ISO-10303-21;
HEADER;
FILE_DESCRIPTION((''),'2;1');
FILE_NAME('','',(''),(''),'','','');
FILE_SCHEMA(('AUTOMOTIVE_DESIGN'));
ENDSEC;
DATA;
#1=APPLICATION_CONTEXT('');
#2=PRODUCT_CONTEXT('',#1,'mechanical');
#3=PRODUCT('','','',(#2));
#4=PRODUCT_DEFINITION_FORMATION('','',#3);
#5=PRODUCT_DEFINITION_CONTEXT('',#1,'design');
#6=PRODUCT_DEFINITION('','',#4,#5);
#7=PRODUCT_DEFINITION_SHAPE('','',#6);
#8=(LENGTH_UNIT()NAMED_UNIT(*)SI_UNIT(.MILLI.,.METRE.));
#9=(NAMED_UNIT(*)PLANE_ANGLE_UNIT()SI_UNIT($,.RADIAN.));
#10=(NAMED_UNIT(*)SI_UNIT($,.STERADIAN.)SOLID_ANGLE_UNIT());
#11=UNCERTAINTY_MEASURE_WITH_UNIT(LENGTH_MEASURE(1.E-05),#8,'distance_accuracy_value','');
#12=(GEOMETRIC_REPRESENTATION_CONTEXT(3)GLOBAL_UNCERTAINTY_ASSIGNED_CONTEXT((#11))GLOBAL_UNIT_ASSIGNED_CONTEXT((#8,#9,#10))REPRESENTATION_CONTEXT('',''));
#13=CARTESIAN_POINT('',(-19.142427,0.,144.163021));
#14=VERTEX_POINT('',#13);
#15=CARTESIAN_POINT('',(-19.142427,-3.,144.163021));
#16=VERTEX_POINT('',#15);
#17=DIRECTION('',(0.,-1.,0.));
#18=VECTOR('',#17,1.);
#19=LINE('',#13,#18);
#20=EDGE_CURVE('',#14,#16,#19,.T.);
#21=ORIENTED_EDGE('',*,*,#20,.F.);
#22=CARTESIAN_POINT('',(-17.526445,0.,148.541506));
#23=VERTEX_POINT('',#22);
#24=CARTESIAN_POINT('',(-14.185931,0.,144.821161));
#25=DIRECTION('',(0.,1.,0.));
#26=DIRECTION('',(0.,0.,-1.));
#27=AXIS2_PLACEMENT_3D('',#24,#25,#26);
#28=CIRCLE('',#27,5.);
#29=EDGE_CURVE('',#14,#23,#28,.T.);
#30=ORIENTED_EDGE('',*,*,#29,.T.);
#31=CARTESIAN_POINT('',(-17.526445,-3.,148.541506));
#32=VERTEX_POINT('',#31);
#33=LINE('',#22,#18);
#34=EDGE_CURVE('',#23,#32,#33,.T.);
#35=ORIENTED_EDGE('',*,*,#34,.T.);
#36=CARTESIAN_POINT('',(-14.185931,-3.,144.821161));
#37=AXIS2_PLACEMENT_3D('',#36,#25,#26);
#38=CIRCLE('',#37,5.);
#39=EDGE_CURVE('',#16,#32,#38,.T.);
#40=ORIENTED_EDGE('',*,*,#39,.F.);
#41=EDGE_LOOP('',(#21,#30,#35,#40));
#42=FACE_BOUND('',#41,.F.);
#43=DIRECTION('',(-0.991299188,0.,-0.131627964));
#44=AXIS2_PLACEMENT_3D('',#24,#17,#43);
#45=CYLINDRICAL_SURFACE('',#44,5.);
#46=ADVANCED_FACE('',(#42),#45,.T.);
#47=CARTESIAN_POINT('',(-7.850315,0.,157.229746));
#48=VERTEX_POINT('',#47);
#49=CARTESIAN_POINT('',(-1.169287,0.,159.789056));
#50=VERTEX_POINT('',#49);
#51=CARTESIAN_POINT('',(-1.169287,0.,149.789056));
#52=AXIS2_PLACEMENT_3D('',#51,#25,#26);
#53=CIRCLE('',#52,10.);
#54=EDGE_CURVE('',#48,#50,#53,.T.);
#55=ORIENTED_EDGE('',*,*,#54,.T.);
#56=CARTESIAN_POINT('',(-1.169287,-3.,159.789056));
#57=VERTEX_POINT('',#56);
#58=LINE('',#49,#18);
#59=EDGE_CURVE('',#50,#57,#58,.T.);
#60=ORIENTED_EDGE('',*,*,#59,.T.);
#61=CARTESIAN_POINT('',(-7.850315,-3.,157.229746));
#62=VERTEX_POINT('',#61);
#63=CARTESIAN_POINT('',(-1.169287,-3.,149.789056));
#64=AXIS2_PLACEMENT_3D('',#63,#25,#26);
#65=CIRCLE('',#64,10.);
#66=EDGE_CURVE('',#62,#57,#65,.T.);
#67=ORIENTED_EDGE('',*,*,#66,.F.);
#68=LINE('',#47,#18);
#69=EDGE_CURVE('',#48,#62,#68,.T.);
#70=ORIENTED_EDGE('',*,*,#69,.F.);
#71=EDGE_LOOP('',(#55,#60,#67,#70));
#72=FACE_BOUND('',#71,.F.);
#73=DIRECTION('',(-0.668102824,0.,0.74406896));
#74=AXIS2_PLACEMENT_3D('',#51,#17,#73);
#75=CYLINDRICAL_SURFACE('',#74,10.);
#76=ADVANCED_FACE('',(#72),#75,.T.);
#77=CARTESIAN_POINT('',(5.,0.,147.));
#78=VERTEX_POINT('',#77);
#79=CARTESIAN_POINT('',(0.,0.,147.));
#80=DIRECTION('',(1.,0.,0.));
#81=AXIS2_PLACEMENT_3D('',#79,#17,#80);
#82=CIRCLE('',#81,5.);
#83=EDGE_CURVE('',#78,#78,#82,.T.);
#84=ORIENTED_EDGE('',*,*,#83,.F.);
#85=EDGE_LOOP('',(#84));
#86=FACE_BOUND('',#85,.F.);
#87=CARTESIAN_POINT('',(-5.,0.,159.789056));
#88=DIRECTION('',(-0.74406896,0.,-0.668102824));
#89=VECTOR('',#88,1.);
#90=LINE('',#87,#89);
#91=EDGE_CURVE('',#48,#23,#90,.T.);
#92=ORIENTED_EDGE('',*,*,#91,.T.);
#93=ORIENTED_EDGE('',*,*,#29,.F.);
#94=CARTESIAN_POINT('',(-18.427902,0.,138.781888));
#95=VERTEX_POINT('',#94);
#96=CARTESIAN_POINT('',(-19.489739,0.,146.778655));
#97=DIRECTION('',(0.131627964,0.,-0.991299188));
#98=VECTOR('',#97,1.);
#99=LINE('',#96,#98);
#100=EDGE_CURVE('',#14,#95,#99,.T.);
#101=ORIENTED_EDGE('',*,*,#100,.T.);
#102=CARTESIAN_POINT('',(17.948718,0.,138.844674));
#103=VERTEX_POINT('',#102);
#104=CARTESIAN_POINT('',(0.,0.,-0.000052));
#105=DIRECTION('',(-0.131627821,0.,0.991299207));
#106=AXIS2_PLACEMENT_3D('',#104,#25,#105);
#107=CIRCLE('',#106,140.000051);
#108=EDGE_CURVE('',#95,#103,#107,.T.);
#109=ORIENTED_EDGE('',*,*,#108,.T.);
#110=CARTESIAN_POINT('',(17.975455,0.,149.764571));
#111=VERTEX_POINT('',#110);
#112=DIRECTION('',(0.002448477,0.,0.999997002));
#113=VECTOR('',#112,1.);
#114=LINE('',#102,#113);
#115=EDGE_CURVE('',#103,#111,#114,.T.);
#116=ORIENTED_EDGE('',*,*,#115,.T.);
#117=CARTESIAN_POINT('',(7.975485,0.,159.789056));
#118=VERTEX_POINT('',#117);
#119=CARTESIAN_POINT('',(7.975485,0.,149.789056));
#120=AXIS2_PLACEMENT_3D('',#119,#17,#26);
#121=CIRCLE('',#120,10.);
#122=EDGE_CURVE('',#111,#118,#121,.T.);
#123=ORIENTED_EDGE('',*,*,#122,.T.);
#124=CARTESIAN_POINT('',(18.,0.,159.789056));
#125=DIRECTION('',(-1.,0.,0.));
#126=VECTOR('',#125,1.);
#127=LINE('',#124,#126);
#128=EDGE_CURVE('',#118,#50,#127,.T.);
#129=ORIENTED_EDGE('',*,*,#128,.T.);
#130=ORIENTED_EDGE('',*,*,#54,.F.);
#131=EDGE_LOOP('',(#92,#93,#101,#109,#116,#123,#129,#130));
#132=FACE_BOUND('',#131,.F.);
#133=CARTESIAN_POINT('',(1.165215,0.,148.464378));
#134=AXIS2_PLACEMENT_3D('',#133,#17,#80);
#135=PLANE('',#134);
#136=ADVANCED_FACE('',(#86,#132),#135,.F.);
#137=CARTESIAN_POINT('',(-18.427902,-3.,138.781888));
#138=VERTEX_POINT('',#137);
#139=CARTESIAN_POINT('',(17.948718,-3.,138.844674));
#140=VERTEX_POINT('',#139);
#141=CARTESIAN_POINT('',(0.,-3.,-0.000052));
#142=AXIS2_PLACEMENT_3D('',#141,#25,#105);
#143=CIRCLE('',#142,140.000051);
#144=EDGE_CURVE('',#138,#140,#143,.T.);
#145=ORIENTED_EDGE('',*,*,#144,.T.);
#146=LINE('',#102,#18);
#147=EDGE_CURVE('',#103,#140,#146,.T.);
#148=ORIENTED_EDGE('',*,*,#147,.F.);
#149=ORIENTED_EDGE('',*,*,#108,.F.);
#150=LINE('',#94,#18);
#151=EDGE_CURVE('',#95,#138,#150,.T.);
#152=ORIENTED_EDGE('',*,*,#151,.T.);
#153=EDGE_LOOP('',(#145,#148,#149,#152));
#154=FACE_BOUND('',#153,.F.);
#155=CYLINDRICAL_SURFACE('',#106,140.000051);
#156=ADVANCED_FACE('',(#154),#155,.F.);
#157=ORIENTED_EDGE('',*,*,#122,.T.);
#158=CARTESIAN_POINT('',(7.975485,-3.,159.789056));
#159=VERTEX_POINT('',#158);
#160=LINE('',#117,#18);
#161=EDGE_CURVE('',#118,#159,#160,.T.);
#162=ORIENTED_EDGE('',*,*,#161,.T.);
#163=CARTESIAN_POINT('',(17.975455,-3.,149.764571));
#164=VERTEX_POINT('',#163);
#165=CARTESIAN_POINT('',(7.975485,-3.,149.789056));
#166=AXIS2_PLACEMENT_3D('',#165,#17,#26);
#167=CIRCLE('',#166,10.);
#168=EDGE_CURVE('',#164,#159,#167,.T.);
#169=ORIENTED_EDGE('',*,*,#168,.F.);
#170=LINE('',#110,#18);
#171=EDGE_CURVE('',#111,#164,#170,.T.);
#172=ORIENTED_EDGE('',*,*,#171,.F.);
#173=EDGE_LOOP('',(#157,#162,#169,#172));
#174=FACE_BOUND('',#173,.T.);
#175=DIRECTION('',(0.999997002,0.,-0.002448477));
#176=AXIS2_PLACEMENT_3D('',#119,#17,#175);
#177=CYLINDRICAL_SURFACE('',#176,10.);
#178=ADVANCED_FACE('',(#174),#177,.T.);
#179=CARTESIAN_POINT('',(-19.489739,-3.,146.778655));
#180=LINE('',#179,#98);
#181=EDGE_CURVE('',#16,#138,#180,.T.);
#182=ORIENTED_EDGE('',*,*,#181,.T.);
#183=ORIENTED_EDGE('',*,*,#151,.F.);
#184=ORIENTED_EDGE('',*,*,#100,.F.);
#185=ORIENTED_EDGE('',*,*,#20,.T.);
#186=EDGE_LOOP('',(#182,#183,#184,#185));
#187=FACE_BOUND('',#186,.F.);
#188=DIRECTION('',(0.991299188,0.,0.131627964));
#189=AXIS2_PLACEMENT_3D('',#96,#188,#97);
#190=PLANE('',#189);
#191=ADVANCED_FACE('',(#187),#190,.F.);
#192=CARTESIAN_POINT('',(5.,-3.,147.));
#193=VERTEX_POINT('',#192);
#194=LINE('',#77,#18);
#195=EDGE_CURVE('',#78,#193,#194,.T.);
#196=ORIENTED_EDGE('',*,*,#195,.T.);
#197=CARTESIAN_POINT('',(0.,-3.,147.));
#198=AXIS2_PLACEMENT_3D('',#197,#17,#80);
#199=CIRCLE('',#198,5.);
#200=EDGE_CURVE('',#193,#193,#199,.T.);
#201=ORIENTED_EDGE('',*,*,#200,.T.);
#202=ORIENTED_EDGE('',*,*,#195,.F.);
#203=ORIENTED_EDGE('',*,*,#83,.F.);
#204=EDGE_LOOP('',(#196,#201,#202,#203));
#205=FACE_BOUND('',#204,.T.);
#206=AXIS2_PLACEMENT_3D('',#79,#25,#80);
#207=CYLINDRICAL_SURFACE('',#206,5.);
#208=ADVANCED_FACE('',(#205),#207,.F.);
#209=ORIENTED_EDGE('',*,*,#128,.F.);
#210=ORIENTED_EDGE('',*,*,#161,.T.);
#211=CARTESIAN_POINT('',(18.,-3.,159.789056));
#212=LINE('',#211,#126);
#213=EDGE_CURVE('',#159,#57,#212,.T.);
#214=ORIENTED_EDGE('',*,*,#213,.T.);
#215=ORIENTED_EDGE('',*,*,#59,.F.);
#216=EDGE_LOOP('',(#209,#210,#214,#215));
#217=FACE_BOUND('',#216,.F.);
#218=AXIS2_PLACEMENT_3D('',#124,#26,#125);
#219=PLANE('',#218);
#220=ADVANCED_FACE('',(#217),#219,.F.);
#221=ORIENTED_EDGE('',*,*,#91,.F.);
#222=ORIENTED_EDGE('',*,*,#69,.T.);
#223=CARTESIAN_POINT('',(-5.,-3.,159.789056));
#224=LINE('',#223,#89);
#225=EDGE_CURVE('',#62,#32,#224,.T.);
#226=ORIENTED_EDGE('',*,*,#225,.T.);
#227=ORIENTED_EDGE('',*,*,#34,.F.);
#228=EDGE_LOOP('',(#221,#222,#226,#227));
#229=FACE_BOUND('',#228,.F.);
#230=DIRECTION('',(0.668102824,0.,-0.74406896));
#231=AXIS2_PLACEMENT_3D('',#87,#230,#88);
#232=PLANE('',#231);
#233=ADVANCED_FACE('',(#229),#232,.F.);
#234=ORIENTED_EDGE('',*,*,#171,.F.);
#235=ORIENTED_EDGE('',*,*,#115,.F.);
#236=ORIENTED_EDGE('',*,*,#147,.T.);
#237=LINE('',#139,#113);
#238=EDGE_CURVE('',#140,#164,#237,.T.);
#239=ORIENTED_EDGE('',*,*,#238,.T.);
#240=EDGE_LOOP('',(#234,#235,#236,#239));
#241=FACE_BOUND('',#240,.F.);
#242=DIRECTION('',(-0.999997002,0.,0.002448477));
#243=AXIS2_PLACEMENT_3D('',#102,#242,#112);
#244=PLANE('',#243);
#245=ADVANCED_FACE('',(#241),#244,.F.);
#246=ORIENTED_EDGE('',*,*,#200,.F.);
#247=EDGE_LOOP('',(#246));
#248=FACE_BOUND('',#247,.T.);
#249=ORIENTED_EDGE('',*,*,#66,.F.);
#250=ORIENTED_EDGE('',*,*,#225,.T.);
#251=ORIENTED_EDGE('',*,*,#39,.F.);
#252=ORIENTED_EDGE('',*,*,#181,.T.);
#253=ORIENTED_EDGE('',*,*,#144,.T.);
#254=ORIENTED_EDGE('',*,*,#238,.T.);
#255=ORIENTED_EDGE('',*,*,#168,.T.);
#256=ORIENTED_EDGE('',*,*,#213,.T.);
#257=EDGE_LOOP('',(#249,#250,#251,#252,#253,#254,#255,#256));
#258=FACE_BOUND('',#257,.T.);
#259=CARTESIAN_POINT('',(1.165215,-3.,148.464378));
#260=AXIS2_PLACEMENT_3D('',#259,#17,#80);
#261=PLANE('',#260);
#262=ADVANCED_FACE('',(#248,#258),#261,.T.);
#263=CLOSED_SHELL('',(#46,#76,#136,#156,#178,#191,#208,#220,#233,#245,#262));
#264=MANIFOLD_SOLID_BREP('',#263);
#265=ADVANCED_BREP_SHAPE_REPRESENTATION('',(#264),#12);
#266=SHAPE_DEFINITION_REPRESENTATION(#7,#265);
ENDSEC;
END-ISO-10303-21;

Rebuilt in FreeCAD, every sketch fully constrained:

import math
import FreeCAD as App
import Part
import Sketcher

V = App.Vector


def edges_at(feature, points):
    """Names of the edges that pass closest to the given points."""
    edges = feature.Shape.Edges
    near = lambda p: min(range(len(edges)), key=lambda i: edges[i].distToShape(Part.Vertex(*p))[0])
    return sorted({f"Edge{near(p) + 1}" for p in points})

doc = App.newDocument("Part")
body = doc.addObject("PartDesign::Body", "Body")

sketch1 = doc.addObject("Sketcher::SketchObject", "Sketch")
body.addObject(sketch1)
sketch1.AttachmentSupport = (doc.XZ_Plane, [""])
sketch1.MapMode = "FlatFace"
sketch1.addGeometry(Part.ArcOfCircle(Part.Circle(V(0, 0, 0), V(0, 0, 1), 140), math.radians(82.63), math.radians(97.56)), False)
sketch1.addGeometry(Part.LineSegment(V(18, 139, 0), V(18, 160, 0)), False)
sketch1.addGeometry(Part.LineSegment(V(18, 160, 0), V(-5, 160, 0)), False)
sketch1.addGeometry(Part.LineSegment(V(-5, 160, 0), V(-19, 147, 0)), False)
sketch1.addGeometry(Part.LineSegment(V(-19, 147, 0), V(-18, 139, 0)), False)
sketch1.addGeometry(Part.Circle(V(0, 147, 0), V(0, 0, 1), 5), False)
sketch1.addConstraint(Sketcher.Constraint("Coincident", 0, 1, 1, 1))
sketch1.addConstraint(Sketcher.Constraint("Coincident", 1, 2, 2, 1))
sketch1.addConstraint(Sketcher.Constraint("Coincident", 2, 2, 3, 1))
sketch1.addConstraint(Sketcher.Constraint("Coincident", 3, 2, 4, 1))
sketch1.addConstraint(Sketcher.Constraint("Coincident", 4, 2, 0, 2))
sketch1.addConstraint(Sketcher.Constraint("Horizontal", 2))
sketch1.addConstraint(Sketcher.Constraint("PointOnObject", 0, 3, -2))
sketch1.addConstraint(Sketcher.Constraint("PointOnObject", 5, 3, -2))
sketch1.addConstraint(Sketcher.Constraint("Diameter", 5, 10.0))
sketch1.addConstraint(Sketcher.Constraint("DistanceX", 2, 2, 2, 1, 23.0))
sketch1.addConstraint(Sketcher.Constraint("DistanceY", -1, 1, 5, 3, 147.0))
sketch1.addConstraint(Sketcher.Constraint("DistanceX", -1, 1, 1, 2, 18.0))
sketch1.addConstraint(Sketcher.Constraint("Radius", 0, 140.000051))
sketch1.addConstraint(Sketcher.Constraint("DistanceX", 4, 2, -1, 1, 18.427902))
sketch1.addConstraint(Sketcher.Constraint("DistanceY", 3, 2, 2, 2, 13.010401))
sketch1.addConstraint(Sketcher.Constraint("Distance", 3, 19.473651))
sketch1.addConstraint(Sketcher.Constraint("DistanceY", -1, 1, 4, 2, 138.781888))
sketch1.addConstraint(Sketcher.Constraint("DistanceX", 0, 3, 0, 1, 17.948718))
sketch1.addConstraint(Sketcher.Constraint("DistanceY", 0, 1, 3, 2, 7.933981))
pad1 = doc.addObject("PartDesign::Pad", "Pad")
body.addObject(pad1)
pad1.Profile = sketch1
pad1.Length = 3
doc.recompute()

fillet = doc.addObject("PartDesign::Fillet", "Fillet")
body.addObject(fillet)
fillet.Base = (pad1, edges_at(pad1, [(18, -1.5, 159.789), (-5, -1.5, 159.789)]))
fillet.Radius = 10
doc.recompute()

fillet2 = doc.addObject("PartDesign::Fillet", "Fillet001")
body.addObject(fillet2)
fillet2.Base = (fillet, edges_at(fillet, [(-19.49, -1.5, 146.779)]))
fillet2.Radius = 5

doc.recompute()
